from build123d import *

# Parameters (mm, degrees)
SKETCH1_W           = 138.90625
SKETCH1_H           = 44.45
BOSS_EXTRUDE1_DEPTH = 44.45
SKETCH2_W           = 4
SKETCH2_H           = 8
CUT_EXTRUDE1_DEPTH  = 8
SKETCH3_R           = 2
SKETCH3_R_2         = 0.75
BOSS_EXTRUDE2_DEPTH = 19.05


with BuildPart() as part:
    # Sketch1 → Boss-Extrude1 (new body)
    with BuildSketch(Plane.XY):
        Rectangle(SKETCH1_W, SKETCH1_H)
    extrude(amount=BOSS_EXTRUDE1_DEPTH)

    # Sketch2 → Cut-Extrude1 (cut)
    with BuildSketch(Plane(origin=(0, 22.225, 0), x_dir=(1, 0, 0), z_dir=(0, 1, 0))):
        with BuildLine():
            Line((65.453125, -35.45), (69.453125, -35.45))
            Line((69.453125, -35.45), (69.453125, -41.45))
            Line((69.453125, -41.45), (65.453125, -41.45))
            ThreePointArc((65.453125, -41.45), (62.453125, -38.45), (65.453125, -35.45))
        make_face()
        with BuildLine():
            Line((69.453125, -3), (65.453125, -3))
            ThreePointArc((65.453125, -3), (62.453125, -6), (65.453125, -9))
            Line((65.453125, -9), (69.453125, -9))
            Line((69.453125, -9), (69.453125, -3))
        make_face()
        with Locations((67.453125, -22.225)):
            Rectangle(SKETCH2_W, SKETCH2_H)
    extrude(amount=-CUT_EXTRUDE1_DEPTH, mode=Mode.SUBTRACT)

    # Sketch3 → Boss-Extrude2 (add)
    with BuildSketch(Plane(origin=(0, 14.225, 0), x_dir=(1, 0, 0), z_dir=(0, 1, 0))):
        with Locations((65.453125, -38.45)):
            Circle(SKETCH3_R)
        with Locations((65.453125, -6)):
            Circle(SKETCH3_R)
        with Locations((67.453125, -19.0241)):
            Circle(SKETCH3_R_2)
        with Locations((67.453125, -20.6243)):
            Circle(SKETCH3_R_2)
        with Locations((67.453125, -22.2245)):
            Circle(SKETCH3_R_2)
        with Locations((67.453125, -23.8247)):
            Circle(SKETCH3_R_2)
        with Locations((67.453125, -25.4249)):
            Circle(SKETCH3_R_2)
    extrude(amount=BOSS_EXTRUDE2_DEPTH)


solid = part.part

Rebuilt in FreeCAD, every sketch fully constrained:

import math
import FreeCAD as App
import Part
import Sketcher


def add_polygon(sketch, points):
    """Adds a closed chain of lines whose ends are joined by coincident constraints."""
    first, n = sketch.GeometryCount, len(points)
    for a, b in zip(points, points[1:] + points[:1]):
        sketch.addGeometry(Part.LineSegment(App.Vector(*a, 0), App.Vector(*b, 0)), False)
    for i in range(n):
        sketch.addConstraint(Sketcher.Constraint("Coincident", first + i, 2, first + (i + 1) % n, 1))

doc = App.newDocument("Part")
body = doc.addObject("PartDesign::Body", "Body")

sketch1 = doc.addObject("Sketcher::SketchObject", "Sketch")
body.addObject(sketch1)
sketch1.AttachmentSupport = (doc.XY_Plane, [""])
sketch1.MapMode = "FlatFace"
add_polygon(sketch1, [(-69, 22), (-69, -22), (69, -22), (69, 22)])
sketch1.addConstraint([
    Sketcher.Constraint("Vertical", 0),
    Sketcher.Constraint("Horizontal", 1),
    Sketcher.Constraint("Vertical", 2),
    Sketcher.Constraint("Horizontal", 3),
    Sketcher.Constraint("Symmetric", 0, 2, 2, 2, -1, 1),
    Sketcher.Constraint("DistanceY", 0, 2, 0, 1, 44.45),
    Sketcher.Constraint("DistanceX", 1, 1, 1, 2, 138.90625),
])
pad1 = doc.addObject("PartDesign::Pad", "Pad")
body.addObject(pad1)
pad1.Profile = sketch1
pad1.Length = 44.45

sketch2 = doc.addObject("Sketcher::SketchObject", "Sketch001")
body.addObject(sketch2)
sketch2.AttachmentSupport = (doc.XZ_Plane, [""])
sketch2.MapMode = "FlatFace"
sketch2.AttachmentOffset = App.Placement(App.Vector(0, 0, -22.225), App.Rotation())
sketch2.addGeometry(Part.LineSegment(App.Vector(69.5, 35.5, 0), App.Vector(65.5, 35.5, 0)), False)
sketch2.addGeometry(Part.ArcOfCircle(Part.Circle(App.Vector(65.5, 38.5, 0), App.Vector(0, 0, 1), 3), math.radians(90), math.radians(270)), False)
sketch2.addGeometry(Part.LineSegment(App.Vector(65.5, 41.5, 0), App.Vector(69.5, 41.5, 0)), False)
sketch2.addGeometry(Part.LineSegment(App.Vector(69.5, 41.5, 0), App.Vector(69.5, 35.5, 0)), False)
sketch2.addGeometry(Part.LineSegment(App.Vector(69.5, 3, 0), App.Vector(65.5, 3, 0)), False)
sketch2.addGeometry(Part.ArcOfCircle(Part.Circle(App.Vector(65.5, 6, 0), App.Vector(0, 0, 1), 3), math.radians(90), math.radians(270)), False)
sketch2.addGeometry(Part.LineSegment(App.Vector(65.5, 9, 0), App.Vector(69.5, 9, 0)), False)
sketch2.addGeometry(Part.LineSegment(App.Vector(69.5, 9, 0), App.Vector(69.5, 3, 0)), False)
add_polygon(sketch2, [(65.5, 18.2), (65.5, 26.2), (69.5, 26.2), (69.5, 18.2)])
sketch2.addConstraint([
    Sketcher.Constraint("Tangent", 0, 2, 1, 2),
    Sketcher.Constraint("Tangent", 1, 1, 2, 1),
    Sketcher.Constraint("Coincident", 2, 2, 3, 1),
    Sketcher.Constraint("Coincident", 3, 2, 0, 1),
    Sketcher.Constraint("Tangent", 4, 2, 5, 2),
    Sketcher.Constraint("Tangent", 5, 1, 6, 1),
    Sketcher.Constraint("Coincident", 6, 2, 7, 1),
    Sketcher.Constraint("Coincident", 7, 2, 4, 1),
    Sketcher.Constraint("Horizontal", 0),
    Sketcher.Constraint("Horizontal", 2),
    Sketcher.Constraint("Vertical", 3),
    Sketcher.Constraint("Horizontal", 4),
    Sketcher.Constraint("Horizontal", 6),
    Sketcher.Constraint("Vertical", 7),
    Sketcher.Constraint("Vertical", 8),
    Sketcher.Constraint("Horizontal", 9),
    Sketcher.Constraint("Vertical", 10),
    Sketcher.Constraint("Horizontal", 11),
    Sketcher.Constraint("Equal", 1, 5),
    Sketcher.Constraint("Vertical", 1, 3, 5, 3),
    Sketcher.Constraint("Vertical", 3, 2, 6, 2),
    Sketcher.Constraint("Vertical", 5, 1, 8, 2),
    Sketcher.Constraint("Vertical", 7, 2, 9, 2),
    Sketcher.Constraint("Radius", 1, 3.0),
    Sketcher.Constraint("DistanceX", 0, 2, 0, 1, 4.0),
    Sketcher.Constraint("DistanceY", 8, 1, 8, 2, 8.0),
    Sketcher.Constraint("DistanceY", -1, 1, 5, 3, 6.0),
    Sketcher.Constraint("DistanceY", -1, 1, 1, 3, 38.45),
    Sketcher.Constraint("DistanceY", -1, 1, 8, 2, 26.225),
    Sketcher.Constraint("DistanceX", -1, 1, 1, 3, 65.453125),
])
pocket1 = doc.addObject("PartDesign::Pocket", "Pocket")
body.addObject(pocket1)
pocket1.Profile = sketch2
pocket1.Length = 8
pocket1.Reversed = True

sketch3 = doc.addObject("Sketcher::SketchObject", "Sketch002")
body.addObject(sketch3)
sketch3.AttachmentSupport = (doc.XZ_Plane, [""])
sketch3.MapMode = "FlatFace"
sketch3.AttachmentOffset = App.Placement(App.Vector(0, 0, -14.225), App.Rotation())
sketch3.addGeometry([
    Part.Circle(App.Vector(65.5, 38.5, 0), App.Vector(0, 0, 1), 2),
    Part.Circle(App.Vector(65.5, 6, 0), App.Vector(0, 0, 1), 2),
    Part.Circle(App.Vector(67.5, 19, 0), App.Vector(0, 0, 1), 0.8),
    Part.Circle(App.Vector(67.5, 20.6, 0), App.Vector(0, 0, 1), 0.8),
    Part.Circle(App.Vector(67.5, 22.2, 0), App.Vector(0, 0, 1), 0.8),
    Part.Circle(App.Vector(67.5, 23.8, 0), App.Vector(0, 0, 1), 0.8),
    Part.Circle(App.Vector(67.5, 25.4, 0), App.Vector(0, 0, 1), 0.8),
], False)
sketch3.addConstraint([
    Sketcher.Constraint("Equal", 0, 1),
    Sketcher.Constraint("Equal", 2, 3),
    Sketcher.Constraint("Equal", 3, 4),
    Sketcher.Constraint("Equal", 4, 5),
    Sketcher.Constraint("Equal", 5, 6),
    Sketcher.Constraint("Vertical", 0, 3, 1, 3),
    Sketcher.Constraint("Vertical", 2, 3, 3, 3),
    Sketcher.Constraint("Vertical", 3, 3, 4, 3),
    Sketcher.Constraint("Vertical", 4, 3, 5, 3),
    Sketcher.Constraint("Vertical", 5, 3, 6, 3),
    Sketcher.Constraint("Diameter", 0, 4.0),
    Sketcher.Constraint("Diameter", 2, 1.5),
    Sketcher.Constraint("DistanceY", -1, 1, 1, 3, 6.0),
    Sketcher.Constraint("DistanceX", 1, 3, 2, 3, 2.0),
    Sketcher.Constraint("DistanceY", -1, 1, 0, 3, 38.45),
    Sketcher.Constraint("DistanceY", -1, 1, 2, 3, 19.0241),
    Sketcher.Constraint("DistanceY", -1, 1, 3, 3, 20.6243),
    Sketcher.Constraint("DistanceY", -1, 1, 4, 3, 22.2245),
    Sketcher.Constraint("DistanceY", -1, 1, 5, 3, 23.8247),
    Sketcher.Constraint("DistanceY", -1, 1, 6, 3, 25.4249),
    Sketcher.Constraint("DistanceX", -1, 1, 0, 3, 65.453125),
])
pad2 = doc.addObject("PartDesign::Pad", "Pad001")
body.addObject(pad2)
pad2.Profile = sketch3
pad2.Length = 19.05
pad2.Reversed = True

doc.recompute()
